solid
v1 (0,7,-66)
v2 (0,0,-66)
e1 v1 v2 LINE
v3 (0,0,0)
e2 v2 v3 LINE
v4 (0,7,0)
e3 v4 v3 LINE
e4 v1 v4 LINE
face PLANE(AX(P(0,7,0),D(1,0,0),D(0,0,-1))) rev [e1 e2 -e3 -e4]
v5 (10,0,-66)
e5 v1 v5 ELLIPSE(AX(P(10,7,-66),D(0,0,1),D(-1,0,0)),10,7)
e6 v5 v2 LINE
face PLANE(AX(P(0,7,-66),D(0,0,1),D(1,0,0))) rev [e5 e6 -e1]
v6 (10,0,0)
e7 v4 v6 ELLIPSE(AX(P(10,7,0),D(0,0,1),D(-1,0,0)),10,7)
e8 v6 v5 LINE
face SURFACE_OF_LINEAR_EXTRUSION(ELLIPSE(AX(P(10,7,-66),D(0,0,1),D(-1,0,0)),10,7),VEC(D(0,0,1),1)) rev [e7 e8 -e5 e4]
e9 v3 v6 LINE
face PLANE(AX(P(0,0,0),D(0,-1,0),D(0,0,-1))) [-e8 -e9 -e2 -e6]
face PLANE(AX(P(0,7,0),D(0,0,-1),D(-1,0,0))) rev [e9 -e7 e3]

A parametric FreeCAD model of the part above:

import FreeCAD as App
import Part
import Sketcher

V = App.Vector
Q = App.Units.Quantity

doc = App.newDocument("Part")
body = doc.addObject("PartDesign::Body", "Body")

# Sketch on XZ plane
sketch1 = doc.addObject("Sketcher::SketchObject", "Sketch")
body.addObject(sketch1)
sketch1.AttachmentSupport = (doc.XZ_Plane, [""])
sketch1.MapMode = "FlatFace"
sketch1.addGeometry(Part.LineSegment(V(0, -66, 0), V(0, 0, 0)), False)
sketch1.addGeometry(Part.LineSegment(V(0, 0, 0), V(10, 0, 0)), False)
sketch1.addGeometry(Part.LineSegment(V(10, 0, 0), V(10, -66, 0)), False)
sketch1.addGeometry(Part.LineSegment(V(10, -66, 0), V(0, -66, 0)), False)
sketch1.addConstraint(Sketcher.Constraint("Coincident", 0, 2, 1, 1))
sketch1.addConstraint(Sketcher.Constraint("Coincident", 1, 2, 2, 1))
sketch1.addConstraint(Sketcher.Constraint("Coincident", 2, 2, 3, 1))
sketch1.addConstraint(Sketcher.Constraint("Coincident", 3, 2, 0, 1))
sketch1.addConstraint(Sketcher.Constraint("Vertical", 0))
sketch1.addConstraint(Sketcher.Constraint("Horizontal", 1))
sketch1.addConstraint(Sketcher.Constraint("Vertical", 2))
sketch1.addConstraint(Sketcher.Constraint("Horizontal", 3))
sketch1.addConstraint(Sketcher.Constraint("Coincident", 0, 2, -1, 1))
sketch1.addConstraint(Sketcher.Constraint("DistanceX", 1, 1, 1, 2, Q("10 mm")))
sketch1.addConstraint(Sketcher.Constraint("DistanceY", 0, 1, 0, 2, Q("66 mm")))
pad1 = doc.addObject("PartDesign::Pad", "Pad")
body.addObject(pad1)
pad1.Profile = sketch1
pad1.Length = 7
pad1.Reversed = True

# Sketch on XY plane
sketch2 = doc.addObject("Sketcher::SketchObject", "Sketch001")
body.addObject(sketch2)
sketch2.AttachmentSupport = (doc.XY_Plane, [""])
sketch2.MapMode = "FlatFace"
sketch2.addGeometry(Part.LineSegment(V(10, 7, 0), V(0, 7, 0)), False)
sketch2.addGeometry(Part.BSplineCurve([V(0, 7, 0), V(0, 0, 0), V(10, 0, 0)], [3, 3], [0, 1.570796327], False, 2, [1, 0.707106781, 1], False), False)
sketch2.addGeometry(Part.LineSegment(V(10, 0, 0), V(10, 7, 0)), False)
sketch2.addConstraint(Sketcher.Constraint("Block", 1))
sketch2.addConstraint(Sketcher.Constraint("Coincident", 0, 2, 1, 1))
sketch2.addConstraint(Sketcher.Constraint("Coincident", 1, 2, 2, 1))
sketch2.addConstraint(Sketcher.Constraint("Coincident", 2, 2, 0, 1))
sketch2.addConstraint(Sketcher.Constraint("Horizontal", 0))
sketch2.addConstraint(Sketcher.Constraint("Vertical", 2))
pocket1 = doc.addObject("PartDesign::Pocket", "Pocket")
body.addObject(pocket1)
pocket1.Profile = sketch2
pocket1.Type = "ThroughAll"

doc.recompute()
